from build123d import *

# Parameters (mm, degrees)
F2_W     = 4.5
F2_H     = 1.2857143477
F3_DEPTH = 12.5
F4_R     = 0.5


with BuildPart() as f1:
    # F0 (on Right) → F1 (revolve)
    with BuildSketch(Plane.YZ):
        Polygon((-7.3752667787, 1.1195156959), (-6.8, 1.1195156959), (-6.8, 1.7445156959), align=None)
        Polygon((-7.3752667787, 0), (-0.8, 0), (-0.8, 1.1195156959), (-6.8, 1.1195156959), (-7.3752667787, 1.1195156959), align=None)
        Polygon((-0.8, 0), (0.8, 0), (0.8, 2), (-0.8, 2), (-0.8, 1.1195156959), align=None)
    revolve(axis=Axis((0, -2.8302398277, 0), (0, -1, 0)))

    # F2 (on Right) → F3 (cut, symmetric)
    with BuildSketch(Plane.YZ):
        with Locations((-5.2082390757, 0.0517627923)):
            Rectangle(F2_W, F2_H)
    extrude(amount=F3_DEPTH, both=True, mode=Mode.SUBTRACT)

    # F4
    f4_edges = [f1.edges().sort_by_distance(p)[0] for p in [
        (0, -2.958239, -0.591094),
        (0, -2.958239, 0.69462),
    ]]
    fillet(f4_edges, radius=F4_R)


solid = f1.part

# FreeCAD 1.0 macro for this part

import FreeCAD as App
import Part
import Sketcher
Q = App.Units.Quantity


def edges_at(feature, points):
    """Names of the edges that pass closest to the given points."""
    edges = feature.Shape.Edges
    near = lambda p: min(range(len(edges)), key=lambda i: edges[i].distToShape(Part.Vertex(*p))[0])
    return sorted({f"Edge{near(p) + 1}" for p in points})

doc = App.newDocument("Part")
body = doc.addObject("PartDesign::Body", "Body")

# Sketch on YZ plane
sketch1 = doc.addObject("Sketcher::SketchObject", "Sketch")
body.addObject(sketch1)
sketch1.AttachmentSupport = (doc.YZ_Plane, [""])
sketch1.MapMode = "FlatFace"
sketch1.addGeometry([
    Part.LineSegment(App.Vector(-6.8, 1.119516, 0), App.Vector(-6.8, 1.744516, 0)),  # 0
    Part.LineSegment(App.Vector(-6.8, 1.744516, 0), App.Vector(-7.375267, 1.119516, 0)),  # 1
    Part.LineSegment(App.Vector(-7.375267, 1.119516, 0), App.Vector(-7.375267, 0, 0)),  # 2
    Part.LineSegment(App.Vector(-7.375267, 0, 0), App.Vector(0.8, 0, 0)),  # 3
    Part.LineSegment(App.Vector(0.8, 0, 0), App.Vector(0.8, 2, 0)),  # 4
    Part.LineSegment(App.Vector(0.8, 2, 0), App.Vector(-0.8, 2, 0)),  # 5
    Part.LineSegment(App.Vector(-0.8, 2, 0), App.Vector(-0.8, 1.119516, 0)),  # 6
    Part.LineSegment(App.Vector(-0.8, 1.119516, 0), App.Vector(-6.8, 1.119516, 0)),  # 7
], False)
sketch1.addConstraint([
    Sketcher.Constraint("Coincident", 0, 2, 1, 1),
    Sketcher.Constraint("Coincident", 1, 2, 2, 1),
    Sketcher.Constraint("Coincident", 2, 2, 3, 1),
    Sketcher.Constraint("Coincident", 3, 2, 4, 1),
    Sketcher.Constraint("Coincident", 4, 2, 5, 1),
    Sketcher.Constraint("Coincident", 5, 2, 6, 1),
    Sketcher.Constraint("Coincident", 6, 2, 7, 1),
    Sketcher.Constraint("Coincident", 7, 2, 0, 1),
    Sketcher.Constraint("Vertical", 0),
    Sketcher.Constraint("Vertical", 2),
    Sketcher.Constraint("Horizontal", 3),
    Sketcher.Constraint("Vertical", 4),
    Sketcher.Constraint("Horizontal", 5),
    Sketcher.Constraint("Vertical", 6),
    Sketcher.Constraint("Horizontal", 7),
    Sketcher.Constraint("PointOnObject", 2, 2, -1),
    Sketcher.Constraint("Horizontal", 1, 2, 6, 2),
    Sketcher.Constraint("DistanceX", 7, 2, 7, 1, Q("6 mm")),
    Sketcher.Constraint("DistanceY", 4, 1, 4, 2, Q("2 mm")),
    Sketcher.Constraint("DistanceX", 5, 2, 5, 1, Q("1.6 mm")),
    Sketcher.Constraint("DistanceX", 0, 2, -1, 1, Q("6.8 mm")),
    Sketcher.Constraint("DistanceY", 0, 1, 0, 2, Q("0.625 mm")),
    Sketcher.Constraint("DistanceX", 3, 1, 3, 2, Q("8.175267 mm")),
    Sketcher.Constraint("DistanceY", 2, 2, 2, 1, Q("1.119516 mm")),
])
revolution = doc.addObject("PartDesign::Revolution", "Revolution")
body.addObject(revolution)
revolution.Profile = sketch1
revolution.ReferenceAxis = (sketch1, ["H_Axis"])
revolution.Angle = 360

# Sketch on YZ plane
sketch2 = doc.addObject("Sketcher::SketchObject", "Sketch001")
body.addObject(sketch2)
sketch2.AttachmentSupport = (doc.YZ_Plane, [""])
sketch2.MapMode = "FlatFace"
sketch2.addGeometry([
    Part.LineSegment(App.Vector(-7.458239, 0.69462, 0), App.Vector(-7.458239, -0.591094, 0)),
    Part.LineSegment(App.Vector(-7.458239, -0.591094, 0), App.Vector(-2.958239, -0.591094, 0)),
    Part.LineSegment(App.Vector(-2.958239, -0.591094, 0), App.Vector(-2.958239, 0.69462, 0)),
    Part.LineSegment(App.Vector(-2.958239, 0.69462, 0), App.Vector(-7.458239, 0.69462, 0)),
], False)
sketch2.addConstraint([
    Sketcher.Constraint("Coincident", 0, 2, 1, 1),
    Sketcher.Constraint("Coincident", 1, 2, 2, 1),
    Sketcher.Constraint("Coincident", 2, 2, 3, 1),
    Sketcher.Constraint("Coincident", 3, 2, 0, 1),
    Sketcher.Constraint("Vertical", 0),
    Sketcher.Constraint("Horizontal", 1),
    Sketcher.Constraint("Vertical", 2),
    Sketcher.Constraint("Horizontal", 3),
    Sketcher.Constraint("DistanceX", 1, 1, 1, 2, Q("4.5 mm")),
    Sketcher.Constraint("DistanceY", 0, 2, 0, 1, Q("1.285714 mm")),
    Sketcher.Constraint("DistanceX", 0, 2, -1, 1, Q("7.458239 mm")),
    Sketcher.Constraint("DistanceY", -1, 1, 2, 2, Q("0.69462 mm")),
])
pocket1 = doc.addObject("PartDesign::Pocket", "Pocket")
body.addObject(pocket1)
pocket1.Profile = sketch2
pocket1.Length = 25
pocket1.Midplane = True
doc.recompute()

fillet = doc.addObject("PartDesign::Fillet", "Fillet")
body.addObject(fillet)
fillet.Base = (pocket1, edges_at(pocket1, [(0, -2.958, -0.591), (0, -2.958, 0.695)]))
fillet.Radius = 0.5

doc.recompute()
